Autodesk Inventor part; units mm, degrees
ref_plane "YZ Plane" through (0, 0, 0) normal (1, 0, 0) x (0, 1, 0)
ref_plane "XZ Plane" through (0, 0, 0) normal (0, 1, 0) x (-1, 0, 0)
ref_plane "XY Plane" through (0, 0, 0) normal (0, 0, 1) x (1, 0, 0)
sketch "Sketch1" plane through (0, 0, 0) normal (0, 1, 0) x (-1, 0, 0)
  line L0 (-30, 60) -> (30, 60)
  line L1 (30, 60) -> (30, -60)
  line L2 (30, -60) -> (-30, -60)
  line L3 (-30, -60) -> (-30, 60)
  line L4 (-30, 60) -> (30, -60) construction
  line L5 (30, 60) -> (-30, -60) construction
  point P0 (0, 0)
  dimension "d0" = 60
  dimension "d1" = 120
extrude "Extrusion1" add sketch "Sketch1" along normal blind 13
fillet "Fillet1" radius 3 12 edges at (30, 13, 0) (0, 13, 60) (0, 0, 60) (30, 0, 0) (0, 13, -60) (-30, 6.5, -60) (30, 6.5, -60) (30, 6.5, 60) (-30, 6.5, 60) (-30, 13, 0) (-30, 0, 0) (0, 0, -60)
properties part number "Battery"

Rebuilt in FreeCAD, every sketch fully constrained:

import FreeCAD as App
import Part
import Sketcher

V = App.Vector

doc = App.newDocument("Part")
body = doc.addObject("PartDesign::Body", "Body")

# Sketch on XZ plane
sketch1 = body.newObject("Sketcher::SketchObject", "Sketch")
sketch1.AttachmentSupport = (doc.getObject("XZ_Plane"), [""])
sketch1.MapMode = "FlatFace"
sketch1.addGeometry(Part.LineSegment(V(-30, 60, 0), V(30, 60, 0)), False)
sketch1.addGeometry(Part.LineSegment(V(30, 60, 0), V(30, -60, 0)), False)
sketch1.addGeometry(Part.LineSegment(V(30, -60, 0), V(-30, -60, 0)), False)
sketch1.addGeometry(Part.LineSegment(V(-30, -60, 0), V(-30, 60, 0)), False)
sketch1.addConstraint(Sketcher.Constraint("Coincident", 0, 2, 1, 1))
sketch1.addConstraint(Sketcher.Constraint("Coincident", 1, 2, 2, 1))
sketch1.addConstraint(Sketcher.Constraint("Coincident", 2, 2, 3, 1))
sketch1.addConstraint(Sketcher.Constraint("Coincident", 3, 2, 0, 1))
sketch1.addConstraint(Sketcher.Constraint("Horizontal", 0))
sketch1.addConstraint(Sketcher.Constraint("Vertical", 1))
sketch1.addConstraint(Sketcher.Constraint("Horizontal", 2))
sketch1.addConstraint(Sketcher.Constraint("Vertical", 3))
sketch1.addConstraint(Sketcher.Constraint("Symmetric", 0, 2, 2, 2, -1, 1))
sketch1.addConstraint(Sketcher.Constraint("DistanceX", 0, 1, 0, 2, 60.0))
sketch1.addConstraint(Sketcher.Constraint("DistanceY", 1, 2, 1, 1, 120.0))
pad1 = body.newObject("PartDesign::Pad", "Pad")
pad1.Profile = sketch1
pad1.Length = 13
pad1.Reversed = True
doc.recompute()

fillet = body.newObject("PartDesign::Fillet", "Fillet")
fillet.Base = (pad1, ["Edge1"])
fillet.UseAllEdges = True
fillet.Radius = 3

doc.recompute()
